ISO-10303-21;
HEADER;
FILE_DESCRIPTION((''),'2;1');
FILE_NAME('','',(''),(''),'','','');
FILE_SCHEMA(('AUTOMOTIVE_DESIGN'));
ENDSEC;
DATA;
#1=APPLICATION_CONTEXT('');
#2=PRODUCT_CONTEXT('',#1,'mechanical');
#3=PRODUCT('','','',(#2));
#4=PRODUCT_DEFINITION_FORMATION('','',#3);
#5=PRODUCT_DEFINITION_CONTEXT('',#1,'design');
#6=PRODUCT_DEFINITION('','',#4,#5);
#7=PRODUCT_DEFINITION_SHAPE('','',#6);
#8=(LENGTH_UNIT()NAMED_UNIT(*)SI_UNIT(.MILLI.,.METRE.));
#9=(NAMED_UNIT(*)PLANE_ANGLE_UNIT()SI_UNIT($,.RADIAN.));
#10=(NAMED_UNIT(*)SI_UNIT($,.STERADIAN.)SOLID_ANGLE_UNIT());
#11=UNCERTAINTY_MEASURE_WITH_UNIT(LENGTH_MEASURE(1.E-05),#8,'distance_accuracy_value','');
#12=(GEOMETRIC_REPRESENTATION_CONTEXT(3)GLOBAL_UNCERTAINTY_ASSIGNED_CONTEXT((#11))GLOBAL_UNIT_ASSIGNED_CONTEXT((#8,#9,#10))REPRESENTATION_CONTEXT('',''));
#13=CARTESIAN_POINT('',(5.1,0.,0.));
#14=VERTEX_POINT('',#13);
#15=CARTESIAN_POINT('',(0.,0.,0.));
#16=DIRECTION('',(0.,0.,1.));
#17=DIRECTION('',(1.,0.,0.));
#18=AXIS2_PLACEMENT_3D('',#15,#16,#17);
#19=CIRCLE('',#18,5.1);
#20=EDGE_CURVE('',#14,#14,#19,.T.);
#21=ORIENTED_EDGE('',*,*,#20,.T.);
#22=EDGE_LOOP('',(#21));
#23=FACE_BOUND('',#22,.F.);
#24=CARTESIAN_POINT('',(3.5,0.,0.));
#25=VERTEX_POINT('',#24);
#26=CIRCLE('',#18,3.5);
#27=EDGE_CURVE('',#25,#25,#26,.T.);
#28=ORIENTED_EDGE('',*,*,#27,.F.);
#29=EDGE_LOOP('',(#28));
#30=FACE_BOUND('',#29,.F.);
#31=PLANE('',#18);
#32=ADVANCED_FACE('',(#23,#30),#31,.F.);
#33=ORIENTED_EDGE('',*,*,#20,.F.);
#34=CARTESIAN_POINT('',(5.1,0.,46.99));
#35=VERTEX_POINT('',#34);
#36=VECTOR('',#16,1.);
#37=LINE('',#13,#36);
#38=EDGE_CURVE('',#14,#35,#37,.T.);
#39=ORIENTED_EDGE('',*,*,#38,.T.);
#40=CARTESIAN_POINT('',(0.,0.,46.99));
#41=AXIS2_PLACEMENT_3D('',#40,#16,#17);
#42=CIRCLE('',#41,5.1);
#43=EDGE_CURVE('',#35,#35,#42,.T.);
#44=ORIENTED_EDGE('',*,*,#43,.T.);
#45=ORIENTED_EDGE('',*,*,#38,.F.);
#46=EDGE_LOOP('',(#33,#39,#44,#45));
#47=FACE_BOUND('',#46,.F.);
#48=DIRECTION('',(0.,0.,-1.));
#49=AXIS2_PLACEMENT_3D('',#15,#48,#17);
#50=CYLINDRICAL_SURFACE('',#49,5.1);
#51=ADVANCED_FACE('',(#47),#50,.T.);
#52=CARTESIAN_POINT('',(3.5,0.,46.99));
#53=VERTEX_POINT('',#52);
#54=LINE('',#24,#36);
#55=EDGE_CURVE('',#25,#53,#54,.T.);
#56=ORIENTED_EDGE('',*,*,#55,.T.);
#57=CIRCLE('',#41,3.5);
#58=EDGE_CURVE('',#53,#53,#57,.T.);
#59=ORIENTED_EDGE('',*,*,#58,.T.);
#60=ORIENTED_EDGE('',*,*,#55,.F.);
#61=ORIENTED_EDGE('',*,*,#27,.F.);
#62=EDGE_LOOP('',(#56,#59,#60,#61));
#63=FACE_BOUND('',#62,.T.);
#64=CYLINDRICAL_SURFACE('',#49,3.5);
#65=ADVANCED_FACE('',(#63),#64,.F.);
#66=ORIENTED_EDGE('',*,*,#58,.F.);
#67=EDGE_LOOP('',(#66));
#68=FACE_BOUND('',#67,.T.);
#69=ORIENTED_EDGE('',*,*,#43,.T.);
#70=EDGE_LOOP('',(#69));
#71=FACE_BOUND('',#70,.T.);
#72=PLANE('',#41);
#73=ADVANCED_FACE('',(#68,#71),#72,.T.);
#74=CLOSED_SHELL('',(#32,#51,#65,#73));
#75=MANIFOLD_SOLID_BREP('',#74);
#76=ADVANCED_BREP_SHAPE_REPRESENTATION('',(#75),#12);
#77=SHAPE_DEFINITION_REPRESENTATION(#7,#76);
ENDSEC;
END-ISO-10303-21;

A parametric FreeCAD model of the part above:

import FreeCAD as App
import Part
import Sketcher

V = App.Vector

doc = App.newDocument("Part")
body = doc.addObject("PartDesign::Body", "Body")

sketch1 = doc.addObject("Sketcher::SketchObject", "Sketch")
body.addObject(sketch1)
sketch1.AttachmentSupport = (doc.XY_Plane, [""])
sketch1.MapMode = "FlatFace"
sketch1.addGeometry([
    Part.Circle(V(0, 0, 0), V(0, 0, 1), 5.1),
    Part.Circle(V(0, 0, 0), V(0, 0, 1), 3.5),
], False)
sketch1.addConstraint([
    Sketcher.Constraint("Coincident", 0, 3, -1, 1),
    Sketcher.Constraint("Coincident", 1, 3, -1, 1),
    Sketcher.Constraint("Diameter", 0, 10.2),
    Sketcher.Constraint("Diameter", 1, 7.0),
])
pad1 = doc.addObject("PartDesign::Pad", "Pad")
body.addObject(pad1)
pad1.Profile = sketch1
pad1.Length = 46.99

doc.recompute()
